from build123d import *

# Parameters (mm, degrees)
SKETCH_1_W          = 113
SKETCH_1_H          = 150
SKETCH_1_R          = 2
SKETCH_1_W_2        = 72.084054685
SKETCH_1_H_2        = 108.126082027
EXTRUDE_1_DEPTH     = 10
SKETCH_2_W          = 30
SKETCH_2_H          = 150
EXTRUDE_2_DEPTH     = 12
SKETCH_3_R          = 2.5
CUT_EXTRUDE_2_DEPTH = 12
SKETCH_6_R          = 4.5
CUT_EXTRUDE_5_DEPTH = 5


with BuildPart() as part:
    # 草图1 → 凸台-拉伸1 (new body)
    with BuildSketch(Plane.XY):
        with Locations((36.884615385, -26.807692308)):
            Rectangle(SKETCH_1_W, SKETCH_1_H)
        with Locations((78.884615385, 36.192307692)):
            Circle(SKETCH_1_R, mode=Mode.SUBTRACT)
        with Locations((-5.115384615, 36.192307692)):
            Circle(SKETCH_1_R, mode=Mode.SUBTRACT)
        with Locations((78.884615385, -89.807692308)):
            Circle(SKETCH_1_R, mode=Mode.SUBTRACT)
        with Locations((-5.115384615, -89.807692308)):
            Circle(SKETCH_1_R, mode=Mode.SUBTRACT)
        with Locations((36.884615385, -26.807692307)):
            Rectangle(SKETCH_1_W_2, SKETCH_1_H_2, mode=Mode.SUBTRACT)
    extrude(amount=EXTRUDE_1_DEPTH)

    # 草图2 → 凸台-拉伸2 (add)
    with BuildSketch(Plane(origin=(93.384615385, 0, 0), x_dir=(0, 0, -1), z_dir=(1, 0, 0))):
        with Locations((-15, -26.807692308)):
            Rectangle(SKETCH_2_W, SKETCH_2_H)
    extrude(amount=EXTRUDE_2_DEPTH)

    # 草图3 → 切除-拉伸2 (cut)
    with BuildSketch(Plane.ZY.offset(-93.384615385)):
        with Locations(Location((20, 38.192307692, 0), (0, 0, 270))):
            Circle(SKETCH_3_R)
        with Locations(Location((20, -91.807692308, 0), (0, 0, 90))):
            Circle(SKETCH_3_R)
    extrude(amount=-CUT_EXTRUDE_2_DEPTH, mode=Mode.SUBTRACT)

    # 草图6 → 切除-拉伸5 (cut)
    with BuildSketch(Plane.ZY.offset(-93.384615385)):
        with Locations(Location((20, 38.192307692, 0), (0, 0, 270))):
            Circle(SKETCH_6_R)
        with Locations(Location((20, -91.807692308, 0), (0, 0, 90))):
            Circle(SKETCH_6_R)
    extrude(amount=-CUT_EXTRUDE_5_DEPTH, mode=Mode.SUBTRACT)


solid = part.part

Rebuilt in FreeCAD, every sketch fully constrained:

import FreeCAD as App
import Part
import Sketcher

V = App.Vector
Q = App.Units.Quantity


def add_polygon(sketch, points):
    """Adds a closed chain of lines whose ends are joined by coincident constraints."""
    first, n = sketch.GeometryCount, len(points)
    for a, b in zip(points, points[1:] + points[:1]):
        sketch.addGeometry(Part.LineSegment(App.Vector(*a, 0), App.Vector(*b, 0)), False)
    for i in range(n):
        sketch.addConstraint(Sketcher.Constraint("Coincident", first + i, 2, first + (i + 1) % n, 1))

doc = App.newDocument("Part")
body = doc.addObject("PartDesign::Body", "Body")

sketch1 = body.newObject("Sketcher::SketchObject", "Sketch")
sketch1.AttachmentSupport = (doc.getObject("XY_Plane"), [""])
sketch1.MapMode = "FlatFace"
add_polygon(sketch1, [(-19.6, 48.2), (-19.6, -101.8), (93.4, -101.8), (93.4, 48.2)])
sketch1.addGeometry(Part.Circle(V(-5.1, -89.8, 0), V(0, 0, 1), 2), False)
sketch1.addGeometry(Part.Circle(V(78.9, -89.8, 0), V(0, 0, 1), 2), False)
sketch1.addGeometry(Part.Circle(V(-5.1, 36.2, 0), V(0, 0, 1), 2), False)
add_polygon(sketch1, [(72.9, -80.9), (0.8, -80.9), (0.8, 27.3), (72.9, 27.3)])
sketch1.addGeometry(Part.Circle(V(78.9, 36.2, 0), V(0, 0, 1), 2), False)
sketch1.addConstraint(Sketcher.Constraint("Vertical", 0))
sketch1.addConstraint(Sketcher.Constraint("Horizontal", 1))
sketch1.addConstraint(Sketcher.Constraint("Vertical", 2))
sketch1.addConstraint(Sketcher.Constraint("Horizontal", 3))
sketch1.addConstraint(Sketcher.Constraint("Horizontal", 7))
sketch1.addConstraint(Sketcher.Constraint("Vertical", 8))
sketch1.addConstraint(Sketcher.Constraint("Horizontal", 9))
sketch1.addConstraint(Sketcher.Constraint("Vertical", 10))
sketch1.addConstraint(Sketcher.Constraint("Equal", 4, 5))
sketch1.addConstraint(Sketcher.Constraint("Equal", 5, 6))
sketch1.addConstraint(Sketcher.Constraint("Equal", 6, 11))
sketch1.addConstraint(Sketcher.Constraint("Horizontal", 4, 3, 5, 3))
sketch1.addConstraint(Sketcher.Constraint("Horizontal", 6, 3, 11, 3))
sketch1.addConstraint(Sketcher.Constraint("Vertical", 4, 3, 6, 3))
sketch1.addConstraint(Sketcher.Constraint("Vertical", 5, 3, 11, 3))
sketch1.addConstraint(Sketcher.Constraint("Diameter", 4, Q("4 mm")))
sketch1.addConstraint(Sketcher.Constraint("DistanceX", 1, 1, 1, 2, Q("113 mm")))
sketch1.addConstraint(Sketcher.Constraint("DistanceY", 0, 2, 0, 1, Q("150 mm")))
sketch1.addConstraint(Sketcher.Constraint("DistanceX", 4, 3, 5, 3, Q("84 mm")))
sketch1.addConstraint(Sketcher.Constraint("DistanceY", 4, 3, 6, 3, Q("126 mm")))
sketch1.addConstraint(Sketcher.Constraint("DistanceY", 0, 2, 4, 3, Q("12 mm")))
sketch1.addConstraint(Sketcher.Constraint("DistanceX", 0, 2, 4, 3, Q("14.5 mm")))
sketch1.addConstraint(Sketcher.Constraint("DistanceX", 7, 2, 7, 1, Q("72.084055 mm")))
sketch1.addConstraint(Sketcher.Constraint("DistanceY", 8, 1, 8, 2, Q("108.126082 mm")))
sketch1.addConstraint(Sketcher.Constraint("DistanceX", -1, 1, 7, 2, Q("0.842588 mm")))
sketch1.addConstraint(Sketcher.Constraint("DistanceY", -1, 1, 8, 2, Q("27.255349 mm")))
sketch1.addConstraint(Sketcher.Constraint("DistanceY", 4, 3, 7, 2, Q("8.936959 mm")))
sketch1.addConstraint(Sketcher.Constraint("DistanceX", 4, 3, -1, 1, Q("5.115385 mm")))
pad1 = body.newObject("PartDesign::Pad", "Pad")
pad1.Profile = sketch1
pad1.Length = 10

sketch2 = body.newObject("Sketcher::SketchObject", "Sketch001")
sketch2.AttachmentSupport = (doc.getObject("YZ_Plane"), [""])
sketch2.MapMode = "FlatFace"
sketch2.AttachmentOffset = App.Placement(V(0, 0, 93.384615), App.Rotation())
add_polygon(sketch2, [(48, 30), (-102, 30), (-102, 0), (48, 0)])
sketch2.addConstraint(Sketcher.Constraint("Horizontal", 0))
sketch2.addConstraint(Sketcher.Constraint("Vertical", 1))
sketch2.addConstraint(Sketcher.Constraint("Horizontal", 2))
sketch2.addConstraint(Sketcher.Constraint("Vertical", 3))
sketch2.addConstraint(Sketcher.Constraint("PointOnObject", 1, 2, -1))
sketch2.addConstraint(Sketcher.Constraint("DistanceX", 0, 2, 0, 1, Q("150 mm")))
sketch2.addConstraint(Sketcher.Constraint("DistanceY", 1, 2, 1, 1, Q("30 mm")))
sketch2.addConstraint(Sketcher.Constraint("DistanceX", 0, 2, -1, 1, Q("101.807692 mm")))
pad2 = body.newObject("PartDesign::Pad", "Pad001")
pad2.Profile = sketch2
pad2.Length = 12

sketch3 = body.newObject("Sketcher::SketchObject", "Sketch002")
sketch3.AttachmentSupport = (doc.getObject("YZ_Plane"), [""])
sketch3.MapMode = "FlatFace"
sketch3.AttachmentOffset = App.Placement(V(0, 0, 93.384615), App.Rotation())
sketch3.addGeometry(Part.Circle(V(38.2, 20, 0), V(0, 0, 1), 2.5), False)
sketch3.addGeometry(Part.Circle(V(-91.8, 20, 0), V(0, 0, 1), 2.5), False)
sketch3.addConstraint(Sketcher.Constraint("Equal", 0, 1))
sketch3.addConstraint(Sketcher.Constraint("Horizontal", 0, 3, 1, 3))
sketch3.addConstraint(Sketcher.Constraint("Diameter", 0, Q("5 mm")))
sketch3.addConstraint(Sketcher.Constraint("DistanceY", -1, 1, 0, 3, Q("20 mm")))
sketch3.addConstraint(Sketcher.Constraint("DistanceX", 1, 3, 0, 3, Q("130 mm")))
sketch3.addConstraint(Sketcher.Constraint("DistanceX", -1, 1, 0, 3, Q("38.192308 mm")))
pocket1 = body.newObject("PartDesign::Pocket", "Pocket")
pocket1.Profile = sketch3
pocket1.Length = 12
pocket1.Reversed = True

sketch4 = body.newObject("Sketcher::SketchObject", "Sketch003")
sketch4.AttachmentSupport = (doc.getObject("YZ_Plane"), [""])
sketch4.MapMode = "FlatFace"
sketch4.AttachmentOffset = App.Placement(V(0, 0, 93.384615), App.Rotation())
sketch4.addGeometry(Part.Circle(V(38.2, 20, 0), V(0, 0, 1), 4.5), False)
sketch4.addGeometry(Part.Circle(V(-91.8, 20, 0), V(0, 0, 1), 4.5), False)
sketch4.addConstraint(Sketcher.Constraint("Equal", 0, 1))
sketch4.addConstraint(Sketcher.Constraint("Horizontal", 0, 3, 1, 3))
sketch4.addConstraint(Sketcher.Constraint("Diameter", 0, Q("9 mm")))
sketch4.addConstraint(Sketcher.Constraint("DistanceY", -1, 1, 0, 3, Q("20 mm")))
sketch4.addConstraint(Sketcher.Constraint("DistanceX", 1, 3, 0, 3, Q("130 mm")))
sketch4.addConstraint(Sketcher.Constraint("DistanceX", -1, 1, 0, 3, Q("38.192308 mm")))
pocket2 = body.newObject("PartDesign::Pocket", "Pocket001")
pocket2.Profile = sketch4
pocket2.Length = 5
pocket2.Reversed = True

doc.recompute()
